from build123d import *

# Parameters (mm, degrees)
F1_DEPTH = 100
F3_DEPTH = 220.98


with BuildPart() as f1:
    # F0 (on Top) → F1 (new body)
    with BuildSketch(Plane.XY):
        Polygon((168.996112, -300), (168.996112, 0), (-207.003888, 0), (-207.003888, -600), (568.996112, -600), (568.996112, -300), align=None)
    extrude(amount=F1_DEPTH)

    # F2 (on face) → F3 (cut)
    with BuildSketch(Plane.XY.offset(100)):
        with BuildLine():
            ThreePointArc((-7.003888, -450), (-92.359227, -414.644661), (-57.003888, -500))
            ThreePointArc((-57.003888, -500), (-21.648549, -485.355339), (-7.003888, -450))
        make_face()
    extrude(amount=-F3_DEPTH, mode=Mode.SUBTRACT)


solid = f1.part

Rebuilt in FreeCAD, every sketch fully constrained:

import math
import FreeCAD as App
import Part
import Sketcher

V = App.Vector
Q = App.Units.Quantity


def add_polygon(sketch, points):
    """Adds a closed chain of lines whose ends are joined by coincident constraints."""
    first, n = sketch.GeometryCount, len(points)
    for a, b in zip(points, points[1:] + points[:1]):
        sketch.addGeometry(Part.LineSegment(App.Vector(*a, 0), App.Vector(*b, 0)), False)
    for i in range(n):
        sketch.addConstraint(Sketcher.Constraint("Coincident", first + i, 2, first + (i + 1) % n, 1))

doc = App.newDocument("Part")
params = doc.addObject("Spreadsheet::Sheet", "Params")
for row, (alias, value) in enumerate([
    ("sketch1_width", "376 mm"),
    ("sketch1_width2", "776 mm"),
    ("sketch1_height", "300 mm"),
    ("pad1_length", "100 mm"),
    ("sketch2_radius", "50 mm"),
    ("pocket1_length", "220.98 mm"),
], start=1):
    params.set(f"A{row}", alias)
    params.set(f"B{row}", "=" + value)
    params.setAlias(f"B{row}", alias)

body = doc.addObject("PartDesign::Body", "Body")

sketch1 = doc.addObject("Sketcher::SketchObject", "Sketch")
body.addObject(sketch1)
sketch1.AttachmentSupport = (doc.XY_Plane, [""])
sketch1.MapMode = "FlatFace"
add_polygon(sketch1, [(169, -300), (169, 0), (-207, 0), (-207, -600), (569, -600), (569, -300)])
sketch1.addConstraint([
    Sketcher.Constraint("Vertical", 0),
    Sketcher.Constraint("Horizontal", 1),
    Sketcher.Constraint("Vertical", 2),
    Sketcher.Constraint("Horizontal", 3),
    Sketcher.Constraint("Vertical", 4),
    Sketcher.Constraint("Horizontal", 5),
    Sketcher.Constraint("PointOnObject", 0, 2, -1),
    Sketcher.Constraint("Equal", 0, 4),
    Sketcher.Constraint("DistanceX", 1, 2, 1, 1, Q("376 mm")),
    Sketcher.Constraint("DistanceX", 3, 1, 3, 2, Q("776 mm")),
    Sketcher.Constraint("DistanceY", 0, 1, 0, 2, Q("300 mm")),
    Sketcher.Constraint("DistanceX", -1, 1, 3, 2, Q("568.996112 mm")),
])
sketch1.setExpression("Constraints[14]", "Params.sketch1_width")
sketch1.setExpression("Constraints[15]", "Params.sketch1_width2")
sketch1.setExpression("Constraints[16]", "Params.sketch1_height")
pad1 = doc.addObject("PartDesign::Pad", "Pad")
body.addObject(pad1)
pad1.Profile = sketch1
pad1.setExpression("Length", "Params.pad1_length")

sketch2 = doc.addObject("Sketcher::SketchObject", "Sketch001")
body.addObject(sketch2)
sketch2.AttachmentSupport = (doc.XY_Plane, [""])
sketch2.MapMode = "FlatFace"
sketch2.AttachmentOffset = App.Placement(V(0, 0, 100), App.Rotation())
sketch2.addGeometry([
    Part.ArcOfCircle(Part.Circle(V(-57, -450, 0), V(0, 0, 1), 50), math.radians(0), math.radians(270)),
    Part.ArcOfCircle(Part.Circle(V(-57, -450, 0), V(0, 0, 1), 50), math.radians(-90), math.radians(0)),
], False)
sketch2.addConstraint([
    Sketcher.Constraint("Tangent", 0, 1, 1, 2),
    Sketcher.Constraint("Coincident", 1, 1, 0, 2),
    Sketcher.Constraint("Horizontal", 1, 3, 0, 1),
    Sketcher.Constraint("Vertical", 0, 3, 1, 1),
    Sketcher.Constraint("Radius", 0, Q("50 mm")),
    Sketcher.Constraint("DistanceY", 0, 3, -1, 1, Q("450 mm")),
    Sketcher.Constraint("DistanceX", 1, 3, -1, 1, Q("57.003888 mm")),
])
sketch2.setExpression("Constraints[4]", "Params.sketch2_radius")
pocket1 = doc.addObject("PartDesign::Pocket", "Pocket")
body.addObject(pocket1)
pocket1.Profile = sketch2
pocket1.setExpression("Length", "Params.pocket1_length")

doc.recompute()
